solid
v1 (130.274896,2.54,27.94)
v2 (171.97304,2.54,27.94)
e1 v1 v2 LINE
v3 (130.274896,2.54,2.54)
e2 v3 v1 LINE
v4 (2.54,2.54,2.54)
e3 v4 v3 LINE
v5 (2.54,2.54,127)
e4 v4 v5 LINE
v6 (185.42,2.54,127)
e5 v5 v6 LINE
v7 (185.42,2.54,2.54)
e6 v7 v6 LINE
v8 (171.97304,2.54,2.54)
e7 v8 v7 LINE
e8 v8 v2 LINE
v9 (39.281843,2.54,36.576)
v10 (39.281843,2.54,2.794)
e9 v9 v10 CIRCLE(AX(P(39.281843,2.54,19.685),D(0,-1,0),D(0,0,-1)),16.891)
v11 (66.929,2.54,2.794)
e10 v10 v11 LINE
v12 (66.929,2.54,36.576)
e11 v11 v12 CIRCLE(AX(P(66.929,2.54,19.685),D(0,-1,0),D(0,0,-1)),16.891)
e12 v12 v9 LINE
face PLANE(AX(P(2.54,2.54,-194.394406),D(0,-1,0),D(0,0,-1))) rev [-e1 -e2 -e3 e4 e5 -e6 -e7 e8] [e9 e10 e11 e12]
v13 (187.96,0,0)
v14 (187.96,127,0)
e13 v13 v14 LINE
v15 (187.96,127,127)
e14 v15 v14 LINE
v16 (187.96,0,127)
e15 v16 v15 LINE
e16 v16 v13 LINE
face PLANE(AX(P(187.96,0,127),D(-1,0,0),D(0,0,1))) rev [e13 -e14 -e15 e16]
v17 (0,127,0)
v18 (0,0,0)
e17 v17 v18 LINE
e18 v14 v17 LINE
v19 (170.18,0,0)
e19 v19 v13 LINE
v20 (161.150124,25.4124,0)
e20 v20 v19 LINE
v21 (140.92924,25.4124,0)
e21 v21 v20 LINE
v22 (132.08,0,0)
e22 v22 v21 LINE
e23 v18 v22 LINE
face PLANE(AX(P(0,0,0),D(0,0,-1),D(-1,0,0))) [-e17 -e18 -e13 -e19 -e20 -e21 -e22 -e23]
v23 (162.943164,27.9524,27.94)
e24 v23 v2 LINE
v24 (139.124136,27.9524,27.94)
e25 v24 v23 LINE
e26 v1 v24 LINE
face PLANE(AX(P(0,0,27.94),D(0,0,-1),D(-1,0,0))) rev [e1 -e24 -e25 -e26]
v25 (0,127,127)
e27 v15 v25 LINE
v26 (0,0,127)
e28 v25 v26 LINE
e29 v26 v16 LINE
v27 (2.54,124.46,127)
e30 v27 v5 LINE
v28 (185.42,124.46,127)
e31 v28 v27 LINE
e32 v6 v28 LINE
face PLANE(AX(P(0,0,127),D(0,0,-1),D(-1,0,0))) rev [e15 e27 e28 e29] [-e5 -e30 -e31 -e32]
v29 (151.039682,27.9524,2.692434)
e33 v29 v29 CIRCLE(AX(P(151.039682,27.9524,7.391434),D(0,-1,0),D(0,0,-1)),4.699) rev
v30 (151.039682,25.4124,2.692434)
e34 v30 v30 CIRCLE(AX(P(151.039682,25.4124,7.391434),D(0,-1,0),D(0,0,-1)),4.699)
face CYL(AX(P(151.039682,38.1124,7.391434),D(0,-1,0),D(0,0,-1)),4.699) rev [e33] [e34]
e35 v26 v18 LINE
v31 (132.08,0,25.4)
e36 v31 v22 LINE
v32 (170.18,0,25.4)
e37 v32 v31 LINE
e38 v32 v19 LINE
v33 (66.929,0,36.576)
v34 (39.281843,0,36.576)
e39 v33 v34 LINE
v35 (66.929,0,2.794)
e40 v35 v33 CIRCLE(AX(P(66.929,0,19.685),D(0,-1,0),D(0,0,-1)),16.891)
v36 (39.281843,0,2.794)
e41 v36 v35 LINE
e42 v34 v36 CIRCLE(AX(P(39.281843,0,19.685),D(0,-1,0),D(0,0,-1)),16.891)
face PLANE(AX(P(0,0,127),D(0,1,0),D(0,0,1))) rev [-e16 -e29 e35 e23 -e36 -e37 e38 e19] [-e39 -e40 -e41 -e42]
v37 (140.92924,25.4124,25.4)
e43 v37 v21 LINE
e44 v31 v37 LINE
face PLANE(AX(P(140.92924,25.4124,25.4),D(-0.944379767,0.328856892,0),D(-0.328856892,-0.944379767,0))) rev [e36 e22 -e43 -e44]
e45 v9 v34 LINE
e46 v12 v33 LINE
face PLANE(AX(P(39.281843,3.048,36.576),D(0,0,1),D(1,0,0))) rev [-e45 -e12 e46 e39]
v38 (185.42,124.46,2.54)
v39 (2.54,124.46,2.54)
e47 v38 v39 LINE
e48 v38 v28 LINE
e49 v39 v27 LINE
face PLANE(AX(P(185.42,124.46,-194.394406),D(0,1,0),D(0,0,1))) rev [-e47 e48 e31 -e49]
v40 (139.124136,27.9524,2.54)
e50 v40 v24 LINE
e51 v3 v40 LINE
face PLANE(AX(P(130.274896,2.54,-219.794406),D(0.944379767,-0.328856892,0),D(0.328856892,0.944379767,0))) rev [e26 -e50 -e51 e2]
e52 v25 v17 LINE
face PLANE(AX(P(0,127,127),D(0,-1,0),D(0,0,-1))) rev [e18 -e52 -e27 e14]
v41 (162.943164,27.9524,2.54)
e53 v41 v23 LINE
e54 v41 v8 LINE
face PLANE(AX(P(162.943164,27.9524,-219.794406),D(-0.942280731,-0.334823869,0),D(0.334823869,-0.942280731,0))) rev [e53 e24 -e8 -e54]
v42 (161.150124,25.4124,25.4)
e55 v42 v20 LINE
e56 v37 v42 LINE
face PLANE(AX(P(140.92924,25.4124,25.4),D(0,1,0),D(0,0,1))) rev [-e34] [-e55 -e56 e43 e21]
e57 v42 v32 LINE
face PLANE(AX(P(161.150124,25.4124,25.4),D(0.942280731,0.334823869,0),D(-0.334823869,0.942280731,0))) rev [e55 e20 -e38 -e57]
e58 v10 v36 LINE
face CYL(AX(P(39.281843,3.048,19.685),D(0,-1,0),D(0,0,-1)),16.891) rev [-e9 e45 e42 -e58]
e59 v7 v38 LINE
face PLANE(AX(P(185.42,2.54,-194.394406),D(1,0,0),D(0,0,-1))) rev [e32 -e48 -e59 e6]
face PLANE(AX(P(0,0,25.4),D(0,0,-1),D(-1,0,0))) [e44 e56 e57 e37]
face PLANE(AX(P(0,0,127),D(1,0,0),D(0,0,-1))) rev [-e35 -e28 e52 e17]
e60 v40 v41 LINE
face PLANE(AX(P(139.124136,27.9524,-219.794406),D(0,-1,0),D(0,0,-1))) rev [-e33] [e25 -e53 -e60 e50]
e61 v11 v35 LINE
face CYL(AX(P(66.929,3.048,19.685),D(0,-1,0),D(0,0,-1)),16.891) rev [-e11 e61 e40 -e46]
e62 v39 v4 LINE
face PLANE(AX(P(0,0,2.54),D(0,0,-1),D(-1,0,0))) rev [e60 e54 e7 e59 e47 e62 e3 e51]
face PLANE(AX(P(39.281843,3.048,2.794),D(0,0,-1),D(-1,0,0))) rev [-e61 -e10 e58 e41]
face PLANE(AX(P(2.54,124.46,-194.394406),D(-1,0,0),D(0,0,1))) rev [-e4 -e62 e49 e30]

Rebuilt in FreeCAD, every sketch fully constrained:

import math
import FreeCAD as App
import Part
import Sketcher
from FreeCAD import Vector
Q = App.Units.Quantity

doc = App.newDocument("Part")
body = doc.addObject("PartDesign::Body", "Body")

# Sketch on XY plane
sketch1 = body.newObject("Sketcher::SketchObject", "Sketch")
sketch1.AttachmentSupport = (doc.getObject("XY_Plane"), [""])
sketch1.MapMode = "FlatFace"
sketch1.addGeometry(Part.LineSegment(Vector(0, 127, 0), Vector(0, 0, 0)), False)
sketch1.addGeometry(Part.LineSegment(Vector(0, 0, 0), Vector(188, 0, 0)), False)
sketch1.addGeometry(Part.LineSegment(Vector(188, 0, 0), Vector(188, 127, 0)), False)
sketch1.addGeometry(Part.LineSegment(Vector(188, 127, 0), Vector(0, 127, 0)), False)
sketch1.addConstraint(Sketcher.Constraint("Coincident", 0, 2, 1, 1))
sketch1.addConstraint(Sketcher.Constraint("Coincident", 1, 2, 2, 1))
sketch1.addConstraint(Sketcher.Constraint("Coincident", 2, 2, 3, 1))
sketch1.addConstraint(Sketcher.Constraint("Coincident", 3, 2, 0, 1))
sketch1.addConstraint(Sketcher.Constraint("Vertical", 0))
sketch1.addConstraint(Sketcher.Constraint("Horizontal", 1))
sketch1.addConstraint(Sketcher.Constraint("Vertical", 2))
sketch1.addConstraint(Sketcher.Constraint("Horizontal", 3))
sketch1.addConstraint(Sketcher.Constraint("Coincident", 0, 2, -1, 1))
sketch1.addConstraint(Sketcher.Constraint("DistanceY", 0, 2, 0, 1, Q("5 in")))
sketch1.addConstraint(Sketcher.Constraint("DistanceX", 1, 1, 1, 2, Q("7.4 in")))
pad1 = body.newObject("PartDesign::Pad", "Pad")
pad1.Profile = sketch1
pad1.Length = Q("5 in")

# Sketch on XY plane
sketch2 = body.newObject("Sketcher::SketchObject", "Sketch001")
sketch2.AttachmentSupport = (doc.getObject("XY_Plane"), [""])
sketch2.MapMode = "FlatFace"
sketch2.addGeometry(Part.LineSegment(Vector(170, 0, 0), Vector(132, 0, 0)), False)
sketch2.addGeometry(Part.LineSegment(Vector(132, 0, 0), Vector(141, 25, 0)), False)
sketch2.addGeometry(Part.LineSegment(Vector(141, 25, 0), Vector(161, 25, 0)), False)
sketch2.addGeometry(Part.LineSegment(Vector(161, 25, 0), Vector(170, 0, 0)), False)
sketch2.addConstraint(Sketcher.Constraint("Coincident", 0, 2, 1, 1))
sketch2.addConstraint(Sketcher.Constraint("Coincident", 1, 2, 2, 1))
sketch2.addConstraint(Sketcher.Constraint("Coincident", 2, 2, 3, 1))
sketch2.addConstraint(Sketcher.Constraint("Coincident", 3, 2, 0, 1))
sketch2.addConstraint(Sketcher.Constraint("Horizontal", 0))
sketch2.addConstraint(Sketcher.Constraint("Horizontal", 2))
sketch2.addConstraint(Sketcher.Constraint("PointOnObject", 0, 2, -1))
sketch2.addConstraint(Sketcher.Constraint("DistanceX", 0, 2, 0, 1, Q("1.5 in")))
sketch2.addConstraint(Sketcher.Constraint("DistanceX", -1, 1, 0, 2, Q("5.2 in")))
sketch2.addConstraint(Sketcher.Constraint("DistanceY", -1, 1, 1, 2, Q("25.4124 mm")))
sketch2.addConstraint(Sketcher.Constraint("Distance", 1, Q("26.90909 mm")))
sketch2.addConstraint(Sketcher.Constraint("DistanceX", 2, 1, 2, 2, Q("20.220884 mm")))
pocket1 = body.newObject("PartDesign::Pocket", "Pocket")
pocket1.Profile = sketch2
pocket1.Length = Q("1 in")
pocket1.Reversed = True

# Sketch on XZ plane
sketch3 = body.newObject("Sketcher::SketchObject", "Sketch002")
sketch3.AttachmentSupport = (doc.getObject("XZ_Plane"), [""])
sketch3.MapMode = "FlatFace"
sketch3.AttachmentOffset = App.Placement(Vector(0, 0, -25.4124), App.Rotation())
sketch3.addGeometry(Part.Circle(Vector(151, 7.4, 0), Vector(0, 0, 1), 4.7), False)
sketch3.addConstraint(Sketcher.Constraint("Diameter", 0, Q("0.37 in")))
sketch3.addConstraint(Sketcher.Constraint("DistanceX", -1, 1, 0, 3, Q("151.039682 mm")))
sketch3.addConstraint(Sketcher.Constraint("DistanceY", -1, 1, 0, 3, Q("7.391434 mm")))
pocket2 = body.newObject("PartDesign::Pocket", "Pocket001")
pocket2.Profile = sketch3
pocket2.Length = Q("0.5 in")

# Sketch on XY plane
sketch4 = body.newObject("Sketcher::SketchObject", "Sketch003")
sketch4.AttachmentSupport = (doc.getObject("XY_Plane"), [""])
sketch4.MapMode = "FlatFace"
sketch4.AttachmentOffset = App.Placement(Vector(0, 0, 5 * 25.4), App.Rotation())
sketch4.addGeometry(Part.LineSegment(Vector(3, 124, 0), Vector(3, 3, 0)), False)
sketch4.addGeometry(Part.LineSegment(Vector(3, 3, 0), Vector(185, 3, 0)), False)
sketch4.addGeometry(Part.LineSegment(Vector(185, 3, 0), Vector(185, 124, 0)), False)
sketch4.addGeometry(Part.LineSegment(Vector(185, 124, 0), Vector(3, 124, 0)), False)
sketch4.addConstraint(Sketcher.Constraint("Coincident", 0, 2, 1, 1))
sketch4.addConstraint(Sketcher.Constraint("Coincident", 1, 2, 2, 1))
sketch4.addConstraint(Sketcher.Constraint("Coincident", 2, 2, 3, 1))
sketch4.addConstraint(Sketcher.Constraint("Coincident", 3, 2, 0, 1))
sketch4.addConstraint(Sketcher.Constraint("Vertical", 0))
sketch4.addConstraint(Sketcher.Constraint("Horizontal", 1))
sketch4.addConstraint(Sketcher.Constraint("Vertical", 2))
sketch4.addConstraint(Sketcher.Constraint("Horizontal", 3))
sketch4.addConstraint(Sketcher.Constraint("DistanceX", 1, 1, 1, 2, Q("7.2 in")))
sketch4.addConstraint(Sketcher.Constraint("DistanceY", 0, 2, 0, 1, Q("4.8 in")))
sketch4.addConstraint(Sketcher.Constraint("DistanceX", -1, 1, 0, 2, Q("0.1 in")))
sketch4.addConstraint(Sketcher.Constraint("DistanceY", -1, 1, 0, 2, Q("0.1 in")))
pocket3 = body.newObject("PartDesign::Pocket", "Pocket002")
pocket3.Profile = sketch4
pocket3.Length = Q("3.9 in")

# Sketch on XY plane
sketch5 = body.newObject("Sketcher::SketchObject", "Sketch004")
sketch5.AttachmentSupport = (doc.getObject("XY_Plane"), [""])
sketch5.MapMode = "FlatFace"
sketch5.AttachmentOffset = App.Placement(Vector(0, 0, 1.1 * 25.4), App.Rotation())
sketch5.addGeometry(Part.LineSegment(Vector(163, 28, 0), Vector(172, 3, 0)), False)
sketch5.addGeometry(Part.LineSegment(Vector(172, 3, 0), Vector(185, 3, 0)), False)
sketch5.addGeometry(Part.LineSegment(Vector(185, 3, 0), Vector(185, 124, 0)), False)
sketch5.addGeometry(Part.LineSegment(Vector(185, 124, 0), Vector(3, 124, 0)), False)
sketch5.addGeometry(Part.LineSegment(Vector(3, 124, 0), Vector(3, 3, 0)), False)
sketch5.addGeometry(Part.LineSegment(Vector(3, 3, 0), Vector(130, 3, 0)), False)
sketch5.addGeometry(Part.LineSegment(Vector(130, 3, 0), Vector(139, 28, 0)), False)
sketch5.addGeometry(Part.LineSegment(Vector(139, 28, 0), Vector(163, 28, 0)), False)
sketch5.addConstraint(Sketcher.Constraint("Coincident", 0, 2, 1, 1))
sketch5.addConstraint(Sketcher.Constraint("Coincident", 1, 2, 2, 1))
sketch5.addConstraint(Sketcher.Constraint("Coincident", 2, 2, 3, 1))
sketch5.addConstraint(Sketcher.Constraint("Coincident", 3, 2, 4, 1))
sketch5.addConstraint(Sketcher.Constraint("Coincident", 4, 2, 5, 1))
sketch5.addConstraint(Sketcher.Constraint("Coincident", 5, 2, 6, 1))
sketch5.addConstraint(Sketcher.Constraint("Coincident", 6, 2, 7, 1))
sketch5.addConstraint(Sketcher.Constraint("Coincident", 7, 2, 0, 1))
sketch5.addConstraint(Sketcher.Constraint("Horizontal", 1))
sketch5.addConstraint(Sketcher.Constraint("Vertical", 2))
sketch5.addConstraint(Sketcher.Constraint("Horizontal", 3))
sketch5.addConstraint(Sketcher.Constraint("Vertical", 4))
sketch5.addConstraint(Sketcher.Constraint("Horizontal", 5))
sketch5.addConstraint(Sketcher.Constraint("Horizontal", 7))
sketch5.addConstraint(Sketcher.Constraint("Horizontal", 1, 2, 4, 2))
sketch5.addConstraint(Sketcher.Constraint("DistanceX", 3, 2, 3, 1, Q("7.2 in")))
sketch5.addConstraint(Sketcher.Constraint("DistanceY", 2, 1, 2, 2, Q("4.8 in")))
sketch5.addConstraint(Sketcher.Constraint("DistanceY", -1, 1, 0, 2, Q("0.1 in")))
sketch5.addConstraint(Sketcher.Constraint("DistanceX", -1, 1, 1, 2, Q("7.3 in")))
sketch5.addConstraint(Sketcher.Constraint("DistanceX", 1, 1, 1, 2, Q("13.44696 mm")))
sketch5.addConstraint(Sketcher.Constraint("DistanceX", 7, 1, 7, 2, Q("23.819028 mm")))
sketch5.addConstraint(Sketcher.Constraint("DistanceY", -1, 1, 6, 2, Q("27.9524 mm")))
sketch5.addConstraint(Sketcher.Constraint("Distance", 6, Q("26.90909 mm")))
sketch5.addConstraint(Sketcher.Constraint("DistanceX", 5, 1, 5, 2, Q("127.734896 mm")))
pocket4 = body.newObject("PartDesign::Pocket", "Pocket003")
pocket4.Profile = sketch5
pocket4.Length = Q("1 in")

# Sketch on XZ plane
sketch6 = body.newObject("Sketcher::SketchObject", "Sketch005")
sketch6.AttachmentSupport = (doc.getObject("XZ_Plane"), [""])
sketch6.MapMode = "FlatFace"
sketch6.addGeometry(Part.LineSegment(Vector(67, 37, 0), Vector(39, 37, 0)), False)
sketch6.addGeometry(Part.ArcOfCircle(Part.Circle(Vector(39, 20, 0), Vector(0, 0, 1), 17), math.radians(90), math.radians(270)), False)
sketch6.addGeometry(Part.LineSegment(Vector(39, 3, 0), Vector(67, 3, 0)), False)
sketch6.addGeometry(Part.ArcOfCircle(Part.Circle(Vector(67, 20, 0), Vector(0, 0, 1), 17), math.radians(-90), math.radians(90)), False)
sketch6.addConstraint(Sketcher.Constraint("Tangent", 0, 2, 1, 1))
sketch6.addConstraint(Sketcher.Constraint("Tangent", 1, 2, 2, 1))
sketch6.addConstraint(Sketcher.Constraint("Tangent", 2, 2, 3, 1))
sketch6.addConstraint(Sketcher.Constraint("Tangent", 3, 2, 0, 1))
sketch6.addConstraint(Sketcher.Constraint("Horizontal", 0))
sketch6.addConstraint(Sketcher.Constraint("Horizontal", 2))
sketch6.addConstraint(Sketcher.Constraint("Radius", 1, Q("0.665 in")))
sketch6.addConstraint(Sketcher.Constraint("DistanceY", -1, 1, 0, 2, Q("1.44 in")))
sketch6.addConstraint(Sketcher.Constraint("DistanceX", -1, 1, 3, 3, Q("2.635 in")))
sketch6.addConstraint(Sketcher.Constraint("DistanceX", 0, 2, 0, 1, Q("27.647157 mm")))
pocket5 = body.newObject("PartDesign::Pocket", "Pocket004")
pocket5.Profile = sketch6
pocket5.Length = Q("0.12 in")

doc.recompute()
